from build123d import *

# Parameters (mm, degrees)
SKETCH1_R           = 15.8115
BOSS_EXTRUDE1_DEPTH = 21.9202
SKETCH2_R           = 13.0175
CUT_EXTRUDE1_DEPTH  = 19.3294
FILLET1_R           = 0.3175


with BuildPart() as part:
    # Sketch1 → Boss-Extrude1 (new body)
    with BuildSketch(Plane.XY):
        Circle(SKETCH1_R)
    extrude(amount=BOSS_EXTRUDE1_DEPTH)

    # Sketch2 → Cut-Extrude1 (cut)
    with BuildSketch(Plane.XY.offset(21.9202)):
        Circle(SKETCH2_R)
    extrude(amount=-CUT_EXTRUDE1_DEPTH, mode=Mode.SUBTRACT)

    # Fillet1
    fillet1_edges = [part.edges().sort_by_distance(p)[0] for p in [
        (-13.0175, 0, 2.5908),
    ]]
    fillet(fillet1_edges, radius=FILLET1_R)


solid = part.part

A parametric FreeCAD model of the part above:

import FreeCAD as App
import Part
import Sketcher

V = App.Vector
Q = App.Units.Quantity


def edges_at(feature, points):
    """Names of the edges that pass closest to the given points."""
    edges = feature.Shape.Edges
    near = lambda p: min(range(len(edges)), key=lambda i: edges[i].distToShape(Part.Vertex(*p))[0])
    return sorted({f"Edge{near(p) + 1}" for p in points})

doc = App.newDocument("Part")
body = doc.addObject("PartDesign::Body", "Body")

sketch1 = body.newObject("Sketcher::SketchObject", "Sketch")
sketch1.AttachmentSupport = (doc.getObject("XY_Plane"), [""])
sketch1.MapMode = "FlatFace"
sketch1.addGeometry(Part.Circle(V(0, 0, 0), V(0, 0, 1), 15.8115), False)
sketch1.addConstraint(Sketcher.Constraint("Coincident", 0, 3, -1, 1))
sketch1.addConstraint(Sketcher.Constraint("Diameter", 0, Q("1.245 in")))
pad1 = body.newObject("PartDesign::Pad", "Pad")
pad1.Profile = sketch1
pad1.Length = Q("0.863 in")

sketch2 = body.newObject("Sketcher::SketchObject", "Sketch001")
sketch2.AttachmentSupport = (doc.getObject("XY_Plane"), [""])
sketch2.MapMode = "FlatFace"
sketch2.AttachmentOffset = App.Placement(V(0, 0, 0.863 * 25.4), App.Rotation())
sketch2.addGeometry(Part.Circle(V(0, 0, 0), V(0, 0, 1), 13.0175), False)
sketch2.addConstraint(Sketcher.Constraint("Coincident", 0, 3, -1, 1))
sketch2.addConstraint(Sketcher.Constraint("Diameter", 0, Q("1.025 in")))
pocket1 = body.newObject("PartDesign::Pocket", "Pocket")
pocket1.Profile = sketch2
pocket1.Length = Q("0.761 in")
doc.recompute()

fillet = body.newObject("PartDesign::Fillet", "Fillet")
fillet.Base = (pocket1, edges_at(pocket1, [(-13.018, 0, 2.591)]))
fillet.Radius = Q("0.0125 in")

doc.recompute()
